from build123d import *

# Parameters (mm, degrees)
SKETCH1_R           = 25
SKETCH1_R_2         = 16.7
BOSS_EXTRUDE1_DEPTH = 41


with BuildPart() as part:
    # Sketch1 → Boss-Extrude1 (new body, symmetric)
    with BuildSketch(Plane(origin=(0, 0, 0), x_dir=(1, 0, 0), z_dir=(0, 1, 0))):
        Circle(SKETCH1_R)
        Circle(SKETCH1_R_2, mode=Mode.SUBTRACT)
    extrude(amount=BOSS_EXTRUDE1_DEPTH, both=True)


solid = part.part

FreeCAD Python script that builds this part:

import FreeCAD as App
import Part
import Sketcher

V = App.Vector
Q = App.Units.Quantity

doc = App.newDocument("Part")
body = doc.addObject("PartDesign::Body", "Body")

sketch1 = doc.addObject("Sketcher::SketchObject", "Sketch")
body.addObject(sketch1)
sketch1.AttachmentSupport = (doc.XZ_Plane, [""])
sketch1.MapMode = "FlatFace"
sketch1.addGeometry(Part.Circle(V(0, 0, 0), V(0, 0, 1), 25), False)
sketch1.addGeometry(Part.Circle(V(0, 0, 0), V(0, 0, 1), 16.7), False)
sketch1.addConstraint(Sketcher.Constraint("Coincident", 0, 3, -1, 1))
sketch1.addConstraint(Sketcher.Constraint("Coincident", 1, 3, -1, 1))
sketch1.addConstraint(Sketcher.Constraint("Diameter", 0, Q("50 mm")))
sketch1.addConstraint(Sketcher.Constraint("Diameter", 1, Q("33.4 mm")))
pad1 = doc.addObject("PartDesign::Pad", "Pad")
body.addObject(pad1)
pad1.Profile = sketch1
pad1.Length = 82
pad1.Midplane = True

doc.recompute()
